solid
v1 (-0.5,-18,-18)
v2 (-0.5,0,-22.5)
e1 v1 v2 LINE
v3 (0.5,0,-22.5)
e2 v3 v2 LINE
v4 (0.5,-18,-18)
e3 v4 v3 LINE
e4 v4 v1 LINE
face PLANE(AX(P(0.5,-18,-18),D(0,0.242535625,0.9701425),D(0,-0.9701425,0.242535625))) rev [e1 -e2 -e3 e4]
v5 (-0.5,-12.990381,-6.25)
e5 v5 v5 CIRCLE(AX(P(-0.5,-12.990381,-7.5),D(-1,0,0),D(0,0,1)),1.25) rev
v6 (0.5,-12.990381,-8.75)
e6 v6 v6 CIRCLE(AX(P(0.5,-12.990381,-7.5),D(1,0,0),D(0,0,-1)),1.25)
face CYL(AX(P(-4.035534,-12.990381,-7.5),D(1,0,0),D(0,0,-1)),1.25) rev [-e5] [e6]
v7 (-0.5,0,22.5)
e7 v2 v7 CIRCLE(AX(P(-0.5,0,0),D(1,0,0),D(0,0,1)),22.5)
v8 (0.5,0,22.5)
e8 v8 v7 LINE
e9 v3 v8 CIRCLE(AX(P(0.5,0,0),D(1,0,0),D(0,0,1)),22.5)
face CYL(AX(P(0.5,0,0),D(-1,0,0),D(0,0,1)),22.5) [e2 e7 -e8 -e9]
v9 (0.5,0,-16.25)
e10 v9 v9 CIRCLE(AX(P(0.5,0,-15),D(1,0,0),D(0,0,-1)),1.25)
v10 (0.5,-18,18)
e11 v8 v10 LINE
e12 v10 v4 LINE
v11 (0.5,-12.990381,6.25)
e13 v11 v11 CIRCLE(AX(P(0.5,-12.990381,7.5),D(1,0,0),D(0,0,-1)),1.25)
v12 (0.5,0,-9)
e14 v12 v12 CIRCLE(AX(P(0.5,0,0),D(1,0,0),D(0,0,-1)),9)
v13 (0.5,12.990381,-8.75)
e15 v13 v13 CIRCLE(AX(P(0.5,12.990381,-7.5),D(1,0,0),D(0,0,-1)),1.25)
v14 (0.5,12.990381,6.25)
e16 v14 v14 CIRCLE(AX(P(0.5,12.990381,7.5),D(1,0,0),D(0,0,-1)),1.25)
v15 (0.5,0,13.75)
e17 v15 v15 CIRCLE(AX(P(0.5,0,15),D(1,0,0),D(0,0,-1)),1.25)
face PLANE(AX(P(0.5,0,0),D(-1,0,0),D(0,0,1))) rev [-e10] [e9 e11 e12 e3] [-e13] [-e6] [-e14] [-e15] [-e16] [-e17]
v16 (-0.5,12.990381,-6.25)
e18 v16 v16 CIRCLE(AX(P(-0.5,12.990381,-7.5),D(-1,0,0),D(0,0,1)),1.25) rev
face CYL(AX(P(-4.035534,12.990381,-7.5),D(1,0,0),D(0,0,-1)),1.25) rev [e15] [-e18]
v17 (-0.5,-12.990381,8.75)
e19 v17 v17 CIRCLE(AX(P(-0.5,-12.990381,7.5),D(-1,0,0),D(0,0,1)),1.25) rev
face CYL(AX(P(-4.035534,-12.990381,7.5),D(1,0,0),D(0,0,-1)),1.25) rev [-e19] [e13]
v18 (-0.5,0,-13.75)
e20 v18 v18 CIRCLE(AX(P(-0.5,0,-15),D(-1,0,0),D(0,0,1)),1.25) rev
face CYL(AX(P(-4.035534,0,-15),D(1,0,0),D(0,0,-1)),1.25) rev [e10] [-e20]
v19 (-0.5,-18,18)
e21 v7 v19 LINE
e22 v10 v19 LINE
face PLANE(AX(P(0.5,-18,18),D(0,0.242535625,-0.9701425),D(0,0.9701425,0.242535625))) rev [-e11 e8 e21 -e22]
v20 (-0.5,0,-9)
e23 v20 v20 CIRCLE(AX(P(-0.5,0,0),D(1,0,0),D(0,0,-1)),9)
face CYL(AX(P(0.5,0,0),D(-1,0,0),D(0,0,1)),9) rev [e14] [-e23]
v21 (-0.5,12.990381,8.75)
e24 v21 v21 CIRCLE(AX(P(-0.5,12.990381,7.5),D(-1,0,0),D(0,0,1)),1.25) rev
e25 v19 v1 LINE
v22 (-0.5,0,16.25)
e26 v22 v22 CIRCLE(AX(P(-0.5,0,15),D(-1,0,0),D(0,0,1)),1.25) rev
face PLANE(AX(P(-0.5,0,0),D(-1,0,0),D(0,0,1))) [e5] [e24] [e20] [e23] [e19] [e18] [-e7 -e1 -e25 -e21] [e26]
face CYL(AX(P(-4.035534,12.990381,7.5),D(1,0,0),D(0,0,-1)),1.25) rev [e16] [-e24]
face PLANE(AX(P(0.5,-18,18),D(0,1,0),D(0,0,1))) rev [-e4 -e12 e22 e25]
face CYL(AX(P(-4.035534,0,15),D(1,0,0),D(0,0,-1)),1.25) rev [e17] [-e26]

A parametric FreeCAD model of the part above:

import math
import FreeCAD as App
import Part
import Sketcher
Q = App.Units.Quantity

doc = App.newDocument("Part")
body = doc.addObject("PartDesign::Body", "Body")

sketch1 = body.newObject("Sketcher::SketchObject", "Sketch")
sketch1.AttachmentSupport = (doc.getObject("YZ_Plane"), [""])
sketch1.MapMode = "FlatFace"
sketch1.addGeometry(Part.LineSegment(App.Vector(-18, 18, 0), App.Vector(-18, -18, 0)), False)
sketch1.addGeometry(Part.LineSegment(App.Vector(-18, -18, 0), App.Vector(0, -22, 0)), False)
sketch1.addGeometry(Part.ArcOfCircle(Part.Circle(App.Vector(0, 0, 0), App.Vector(0, 0, 1), 22), math.radians(-90), math.radians(90)), False)
sketch1.addGeometry(Part.LineSegment(App.Vector(0, 22, 0), App.Vector(-18, 18, 0)), False)
sketch1.addGeometry(Part.Circle(App.Vector(0, 0, 0), App.Vector(0, 0, 1), 9), False)
sketch1.addConstraint(Sketcher.Constraint("Coincident", 0, 2, 1, 1))
sketch1.addConstraint(Sketcher.Constraint("Coincident", 1, 2, 2, 1))
sketch1.addConstraint(Sketcher.Constraint("Coincident", 2, 2, 3, 1))
sketch1.addConstraint(Sketcher.Constraint("Coincident", 3, 2, 0, 1))
sketch1.addConstraint(Sketcher.Constraint("Vertical", 0))
sketch1.addConstraint(Sketcher.Constraint("Coincident", 2, 3, -1, 1))
sketch1.addConstraint(Sketcher.Constraint("Coincident", 4, 3, -1, 1))
sketch1.addConstraint(Sketcher.Constraint("PointOnObject", 1, 2, -2))
sketch1.addConstraint(Sketcher.Constraint("PointOnObject", 2, 2, -2))
sketch1.addConstraint(Sketcher.Constraint("Equal", 1, 3))
sketch1.addConstraint(Sketcher.Constraint("Diameter", 4, Q("18 mm")))
sketch1.addConstraint(Sketcher.Constraint("Radius", 2, Q("22.5 mm")))
sketch1.addConstraint(Sketcher.Constraint("DistanceY", 0, 2, 0, 1, Q("36 mm")))
sketch1.addConstraint(Sketcher.Constraint("DistanceX", 0, 2, -1, 1, Q("18 mm")))
pad1 = body.newObject("PartDesign::Pad", "Pad")
pad1.Profile = sketch1
pad1.Length = 1
pad1.Midplane = True

sketch2 = body.newObject("Sketcher::SketchObject", "Sketch001")
sketch2.AttachmentSupport = (doc.getObject("YZ_Plane"), [""])
sketch2.MapMode = "FlatFace"
sketch2.AttachmentOffset = App.Placement(App.Vector(0, 0, 0.5), App.Rotation())
sketch2.addGeometry(Part.Circle(App.Vector(0, -15, 0), App.Vector(0, 0, 1), 1.2), False)
sketch2.addGeometry(Part.Circle(App.Vector(-13, -7.5, 0), App.Vector(0, 0, 1), 1.2), False)
sketch2.addGeometry(Part.Circle(App.Vector(-13, 7.5, 0), App.Vector(0, 0, 1), 1.2), False)
sketch2.addGeometry(Part.Circle(App.Vector(0, 15, 0), App.Vector(0, 0, 1), 1.2), False)
sketch2.addGeometry(Part.Circle(App.Vector(13, 7.5, 0), App.Vector(0, 0, 1), 1.2), False)
sketch2.addGeometry(Part.Circle(App.Vector(13, -7.5, 0), App.Vector(0, 0, 1), 1.2), False)
sketch2.addConstraint(Sketcher.Constraint("Equal", 0, 1))
sketch2.addConstraint(Sketcher.Constraint("Equal", 1, 2))
sketch2.addConstraint(Sketcher.Constraint("Equal", 2, 3))
sketch2.addConstraint(Sketcher.Constraint("Equal", 3, 4))
sketch2.addConstraint(Sketcher.Constraint("Equal", 4, 5))
sketch2.addConstraint(Sketcher.Constraint("Symmetric", 0, 3, 3, 3, -1, 1))
sketch2.addConstraint(Sketcher.Constraint("Symmetric", 1, 3, 4, 3, -1, 1))
sketch2.addConstraint(Sketcher.Constraint("Symmetric", 2, 3, 5, 3, -1, 1))
sketch2.addConstraint(Sketcher.Constraint("Symmetric", 2, 3, 4, 3, -2))
sketch2.addConstraint(Sketcher.Constraint("PointOnObject", 0, 3, -2))
sketch2.addConstraint(Sketcher.Constraint("Diameter", 0, Q("2.5 mm")))
sketch2.addConstraint(Sketcher.Constraint("DistanceY", 0, 3, -1, 1, Q("15 mm")))
sketch2.addConstraint(Sketcher.Constraint("DistanceY", 1, 3, 2, 3, Q("15 mm")))
sketch2.addConstraint(Sketcher.Constraint("DistanceX", 1, 3, -1, 1, Q("12.990381 mm")))
pocket1 = body.newObject("PartDesign::Pocket", "Pocket")
pocket1.Profile = sketch2
pocket1.Length = 1

doc.recompute()
